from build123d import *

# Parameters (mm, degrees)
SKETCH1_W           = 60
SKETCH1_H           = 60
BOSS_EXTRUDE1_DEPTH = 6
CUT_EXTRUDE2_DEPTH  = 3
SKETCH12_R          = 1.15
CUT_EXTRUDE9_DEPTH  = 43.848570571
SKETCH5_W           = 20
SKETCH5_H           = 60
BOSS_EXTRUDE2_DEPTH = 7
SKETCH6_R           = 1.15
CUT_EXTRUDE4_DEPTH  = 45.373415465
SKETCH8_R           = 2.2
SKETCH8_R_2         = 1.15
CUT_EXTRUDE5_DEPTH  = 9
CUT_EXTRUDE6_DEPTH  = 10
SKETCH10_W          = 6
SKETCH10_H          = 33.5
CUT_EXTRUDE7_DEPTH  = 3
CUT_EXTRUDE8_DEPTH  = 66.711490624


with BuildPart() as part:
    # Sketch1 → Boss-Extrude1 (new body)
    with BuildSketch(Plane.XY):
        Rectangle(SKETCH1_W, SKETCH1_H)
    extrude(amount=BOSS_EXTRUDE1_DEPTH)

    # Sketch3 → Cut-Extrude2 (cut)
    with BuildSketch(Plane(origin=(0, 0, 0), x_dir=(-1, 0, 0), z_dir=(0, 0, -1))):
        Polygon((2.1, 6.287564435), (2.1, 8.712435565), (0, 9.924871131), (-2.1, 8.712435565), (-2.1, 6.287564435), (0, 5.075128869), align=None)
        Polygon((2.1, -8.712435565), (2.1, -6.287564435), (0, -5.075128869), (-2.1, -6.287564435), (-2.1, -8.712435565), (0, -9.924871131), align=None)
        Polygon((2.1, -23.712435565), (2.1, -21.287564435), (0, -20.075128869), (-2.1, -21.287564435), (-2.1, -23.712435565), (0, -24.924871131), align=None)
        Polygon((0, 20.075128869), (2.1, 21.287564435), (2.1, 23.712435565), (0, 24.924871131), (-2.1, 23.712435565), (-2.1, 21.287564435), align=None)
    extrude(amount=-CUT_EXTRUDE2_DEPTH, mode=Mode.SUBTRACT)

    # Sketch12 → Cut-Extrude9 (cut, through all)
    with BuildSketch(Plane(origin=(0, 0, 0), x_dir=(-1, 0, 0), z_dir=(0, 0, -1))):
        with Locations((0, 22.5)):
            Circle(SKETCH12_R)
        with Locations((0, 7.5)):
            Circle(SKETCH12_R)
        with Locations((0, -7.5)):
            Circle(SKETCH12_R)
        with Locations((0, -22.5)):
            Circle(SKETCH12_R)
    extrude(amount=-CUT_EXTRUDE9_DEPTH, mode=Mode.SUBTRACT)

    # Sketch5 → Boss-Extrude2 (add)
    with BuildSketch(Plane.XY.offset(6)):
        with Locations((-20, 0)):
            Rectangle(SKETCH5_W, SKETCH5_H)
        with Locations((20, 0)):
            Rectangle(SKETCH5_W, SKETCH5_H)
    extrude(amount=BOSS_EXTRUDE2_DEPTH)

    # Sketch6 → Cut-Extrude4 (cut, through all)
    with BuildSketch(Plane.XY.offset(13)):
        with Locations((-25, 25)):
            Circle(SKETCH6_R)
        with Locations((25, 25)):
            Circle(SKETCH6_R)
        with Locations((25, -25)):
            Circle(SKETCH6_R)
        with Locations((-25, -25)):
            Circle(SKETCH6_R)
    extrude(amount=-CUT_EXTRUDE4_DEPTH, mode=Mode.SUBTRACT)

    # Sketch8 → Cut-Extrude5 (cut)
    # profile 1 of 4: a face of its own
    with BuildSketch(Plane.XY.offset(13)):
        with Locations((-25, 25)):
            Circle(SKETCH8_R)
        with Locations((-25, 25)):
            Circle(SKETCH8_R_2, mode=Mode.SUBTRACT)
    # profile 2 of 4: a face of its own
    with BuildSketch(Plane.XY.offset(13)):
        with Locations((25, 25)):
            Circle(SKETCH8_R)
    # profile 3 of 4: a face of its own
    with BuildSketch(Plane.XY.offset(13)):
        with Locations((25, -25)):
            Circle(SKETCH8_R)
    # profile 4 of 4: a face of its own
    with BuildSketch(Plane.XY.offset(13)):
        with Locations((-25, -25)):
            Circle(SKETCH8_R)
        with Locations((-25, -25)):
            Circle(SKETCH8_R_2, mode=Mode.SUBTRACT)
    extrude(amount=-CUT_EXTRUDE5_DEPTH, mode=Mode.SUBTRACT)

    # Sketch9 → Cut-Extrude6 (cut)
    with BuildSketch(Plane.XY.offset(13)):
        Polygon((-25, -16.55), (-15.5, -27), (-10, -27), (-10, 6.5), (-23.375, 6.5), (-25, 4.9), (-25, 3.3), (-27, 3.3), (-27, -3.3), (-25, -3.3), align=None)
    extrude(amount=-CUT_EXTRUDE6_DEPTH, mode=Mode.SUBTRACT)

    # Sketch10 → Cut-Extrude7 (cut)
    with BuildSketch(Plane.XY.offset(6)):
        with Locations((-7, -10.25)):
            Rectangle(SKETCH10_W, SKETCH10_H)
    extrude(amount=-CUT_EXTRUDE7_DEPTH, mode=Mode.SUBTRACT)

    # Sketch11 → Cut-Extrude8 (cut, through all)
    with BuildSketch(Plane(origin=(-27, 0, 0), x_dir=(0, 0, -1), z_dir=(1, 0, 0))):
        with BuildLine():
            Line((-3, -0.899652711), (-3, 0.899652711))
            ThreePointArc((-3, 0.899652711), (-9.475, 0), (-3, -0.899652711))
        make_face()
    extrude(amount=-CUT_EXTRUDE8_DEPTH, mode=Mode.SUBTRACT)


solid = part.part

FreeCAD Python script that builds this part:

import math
import FreeCAD as App
import Part
import Sketcher
Q = App.Units.Quantity


def add_polygon(sketch, points):
    """Adds a closed chain of lines whose ends are joined by coincident constraints."""
    first, n = sketch.GeometryCount, len(points)
    for a, b in zip(points, points[1:] + points[:1]):
        sketch.addGeometry(Part.LineSegment(App.Vector(*a, 0), App.Vector(*b, 0)), False)
    for i in range(n):
        sketch.addConstraint(Sketcher.Constraint("Coincident", first + i, 2, first + (i + 1) % n, 1))

doc = App.newDocument("Part")
body = doc.addObject("PartDesign::Body", "Body")

sketch1 = body.newObject("Sketcher::SketchObject", "Sketch")
sketch1.AttachmentSupport = (doc.getObject("XY_Plane"), [""])
sketch1.MapMode = "FlatFace"
add_polygon(sketch1, [(-30, 30), (-30, -30), (30, -30), (30, 30)])
sketch1.addConstraint(Sketcher.Constraint("Vertical", 0))
sketch1.addConstraint(Sketcher.Constraint("Horizontal", 1))
sketch1.addConstraint(Sketcher.Constraint("Vertical", 2))
sketch1.addConstraint(Sketcher.Constraint("Horizontal", 3))
sketch1.addConstraint(Sketcher.Constraint("Symmetric", 0, 2, 2, 2, -1, 1))
sketch1.addConstraint(Sketcher.Constraint("Equal", 3, 0))
sketch1.addConstraint(Sketcher.Constraint("DistanceX", 1, 1, 1, 2, 60.0))
pad1 = body.newObject("PartDesign::Pad", "Pad")
pad1.Profile = sketch1
pad1.Length = 6

sketch2 = body.newObject("Sketcher::SketchObject", "Sketch001")
sketch2.AttachmentSupport = (doc.getObject("XY_Plane"), [""])
sketch2.MapMode = "FlatFace"
add_polygon(sketch2, [(-2.1, 6.3), (-2.1, 8.7), (0, 9.9), (2.1, 8.7), (2.1, 6.3), (0, 5.1)])
add_polygon(sketch2, [(-2.1, -8.7), (-2.1, -6.3), (0, -5.1), (2.1, -6.3), (2.1, -8.7), (0, -9.9)])
add_polygon(sketch2, [(-2.1, -23.7), (-2.1, -21.3), (0, -20.1), (2.1, -21.3), (2.1, -23.7), (0, -24.9)])
add_polygon(sketch2, [(0, 20.1), (-2.1, 21.3), (-2.1, 23.7), (0, 24.9), (2.1, 23.7), (2.1, 21.3)])
sketch2.addConstraint(Sketcher.Constraint("Vertical", 0))
sketch2.addConstraint(Sketcher.Constraint("Vertical", 3))
sketch2.addConstraint(Sketcher.Constraint("Vertical", 6))
sketch2.addConstraint(Sketcher.Constraint("Vertical", 9))
sketch2.addConstraint(Sketcher.Constraint("Vertical", 12))
sketch2.addConstraint(Sketcher.Constraint("Vertical", 15))
sketch2.addConstraint(Sketcher.Constraint("Vertical", 19))
sketch2.addConstraint(Sketcher.Constraint("Vertical", 22))
sketch2.addConstraint(Sketcher.Constraint("Symmetric", 3, 2, 6, 2, -1, 1))
sketch2.addConstraint(Sketcher.Constraint("Symmetric", 4, 2, 7, 2, -1, 1))
sketch2.addConstraint(Sketcher.Constraint("Symmetric", 5, 2, 8, 2, -1, 1))
sketch2.addConstraint(Sketcher.Constraint("Symmetric", 1, 2, 10, 2, -1, 1))
sketch2.addConstraint(Sketcher.Constraint("Symmetric", 14, 2, 18, 2, -1, 1))
sketch2.addConstraint(Sketcher.Constraint("Symmetric", 16, 2, 20, 2, -1, 1))
sketch2.addConstraint(Sketcher.Constraint("Symmetric", 17, 2, 21, 2, -1, 1))
sketch2.addConstraint(Sketcher.Constraint("Symmetric", 13, 2, 23, 2, -1, 1))
sketch2.addConstraint(Sketcher.Constraint("Symmetric", 0, 2, 2, 2, -2))
sketch2.addConstraint(Sketcher.Constraint("Symmetric", 12, 2, 14, 2, -2))
sketch2.addConstraint(Sketcher.Constraint("PointOnObject", 1, 2, -2))
sketch2.addConstraint(Sketcher.Constraint("PointOnObject", 4, 2, -2))
sketch2.addConstraint(Sketcher.Constraint("PointOnObject", 13, 2, -2))
sketch2.addConstraint(Sketcher.Constraint("PointOnObject", 16, 2, -2))
sketch2.addConstraint(Sketcher.Constraint("Parallel", 1, 4))
sketch2.addConstraint(Sketcher.Constraint("Parallel", 2, 5))
sketch2.addConstraint(Sketcher.Constraint("Parallel", 7, 10))
sketch2.addConstraint(Sketcher.Constraint("Parallel", 8, 11))
sketch2.addConstraint(Sketcher.Constraint("Parallel", 10, 13))
sketch2.addConstraint(Sketcher.Constraint("Parallel", 13, 16))
sketch2.addConstraint(Sketcher.Constraint("Parallel", 14, 17))
sketch2.addConstraint(Sketcher.Constraint("Parallel", 16, 20))
sketch2.addConstraint(Sketcher.Constraint("Parallel", 20, 23))
sketch2.addConstraint(Sketcher.Constraint("Vertical", 11, 2, 12, 2))
sketch2.addConstraint(Sketcher.Constraint("Equal", 9, 12))
sketch2.addConstraint(Sketcher.Constraint("Angle", 1, Q("30 deg")))
sketch2.addConstraint(Sketcher.Constraint("DistanceY", 6, 2, 0, 2, 15.0))
sketch2.addConstraint(Sketcher.Constraint("DistanceY", 12, 2, 6, 2, 15.0))
sketch2.addConstraint(Sketcher.Constraint("DistanceX", 0, 2, -1, 1, 2.1))
sketch2.addConstraint(Sketcher.Constraint("DistanceY", 0, 1, 0, 2, 2.424871))
pocket1 = body.newObject("PartDesign::Pocket", "Pocket")
pocket1.Profile = sketch2
pocket1.Length = 3
pocket1.Reversed = True

sketch3 = body.newObject("Sketcher::SketchObject", "Sketch002")
sketch3.AttachmentSupport = (doc.getObject("XY_Plane"), [""])
sketch3.MapMode = "FlatFace"
sketch3.addGeometry(Part.Circle(App.Vector(0, 22.5, 0), App.Vector(0, 0, 1), 1.1), False)
sketch3.addGeometry(Part.Circle(App.Vector(0, 7.5, 0), App.Vector(0, 0, 1), 1.1), False)
sketch3.addGeometry(Part.Circle(App.Vector(0, -7.5, 0), App.Vector(0, 0, 1), 1.1), False)
sketch3.addGeometry(Part.Circle(App.Vector(0, -22.5, 0), App.Vector(0, 0, 1), 1.1), False)
sketch3.addConstraint(Sketcher.Constraint("Equal", 0, 1))
sketch3.addConstraint(Sketcher.Constraint("Equal", 1, 2))
sketch3.addConstraint(Sketcher.Constraint("Equal", 2, 3))
sketch3.addConstraint(Sketcher.Constraint("Symmetric", 1, 3, 2, 3, -1, 1))
sketch3.addConstraint(Sketcher.Constraint("Symmetric", 0, 3, 3, 3, -1, 1))
sketch3.addConstraint(Sketcher.Constraint("PointOnObject", 0, 3, -2))
sketch3.addConstraint(Sketcher.Constraint("PointOnObject", 1, 3, -2))
sketch3.addConstraint(Sketcher.Constraint("Diameter", 0, 2.3))
sketch3.addConstraint(Sketcher.Constraint("DistanceY", 1, 3, 0, 3, 15.0))
sketch3.addConstraint(Sketcher.Constraint("DistanceY", 2, 3, 1, 3, 15.0))
pocket2 = body.newObject("PartDesign::Pocket", "Pocket001")
pocket2.Profile = sketch3
pocket2.Type = "ThroughAll"
pocket2.Reversed = True

sketch4 = body.newObject("Sketcher::SketchObject", "Sketch003")
sketch4.AttachmentSupport = (doc.getObject("XY_Plane"), [""])
sketch4.MapMode = "FlatFace"
sketch4.AttachmentOffset = App.Placement(App.Vector(0, 0, 6), App.Rotation())
add_polygon(sketch4, [(-30, 30), (-30, -30), (-10, -30), (-10, 30)])
add_polygon(sketch4, [(10, 30), (10, -30), (30, -30), (30, 30)])
sketch4.addConstraint(Sketcher.Constraint("Vertical", 0))
sketch4.addConstraint(Sketcher.Constraint("Horizontal", 1))
sketch4.addConstraint(Sketcher.Constraint("Vertical", 2))
sketch4.addConstraint(Sketcher.Constraint("Horizontal", 3))
sketch4.addConstraint(Sketcher.Constraint("Vertical", 4))
sketch4.addConstraint(Sketcher.Constraint("Horizontal", 5))
sketch4.addConstraint(Sketcher.Constraint("Vertical", 6))
sketch4.addConstraint(Sketcher.Constraint("Horizontal", 7))
sketch4.addConstraint(Sketcher.Constraint("Symmetric", 2, 2, 4, 2, -1, 1))
sketch4.addConstraint(Sketcher.Constraint("Symmetric", 0, 2, 6, 2, -1, 1))
sketch4.addConstraint(Sketcher.Constraint("Horizontal", 1, 2, 4, 2))
sketch4.addConstraint(Sketcher.Constraint("DistanceX", 1, 1, 1, 2, 20.0))
sketch4.addConstraint(Sketcher.Constraint("DistanceY", 0, 2, 0, 1, 60.0))
sketch4.addConstraint(Sketcher.Constraint("DistanceX", 0, 2, -1, 1, 30.0))
pad2 = body.newObject("PartDesign::Pad", "Pad001")
pad2.Profile = sketch4
pad2.Length = 7

sketch5 = body.newObject("Sketcher::SketchObject", "Sketch004")
sketch5.AttachmentSupport = (doc.getObject("XY_Plane"), [""])
sketch5.MapMode = "FlatFace"
sketch5.AttachmentOffset = App.Placement(App.Vector(0, 0, 13), App.Rotation())
sketch5.addGeometry(Part.Circle(App.Vector(-25, 25, 0), App.Vector(0, 0, 1), 1.1), False)
sketch5.addGeometry(Part.Circle(App.Vector(25, 25, 0), App.Vector(0, 0, 1), 1.1), False)
sketch5.addGeometry(Part.Circle(App.Vector(25, -25, 0), App.Vector(0, 0, 1), 1.1), False)
sketch5.addGeometry(Part.Circle(App.Vector(-25, -25, 0), App.Vector(0, 0, 1), 1.1), False)
sketch5.addConstraint(Sketcher.Constraint("Equal", 0, 1))
sketch5.addConstraint(Sketcher.Constraint("Equal", 1, 2))
sketch5.addConstraint(Sketcher.Constraint("Equal", 2, 3))
sketch5.addConstraint(Sketcher.Constraint("Symmetric", 0, 3, 2, 3, -1, 1))
sketch5.addConstraint(Sketcher.Constraint("Symmetric", 1, 3, 3, 3, -1, 1))
sketch5.addConstraint(Sketcher.Constraint("Symmetric", 0, 3, 1, 3, -2))
sketch5.addConstraint(Sketcher.Constraint("Diameter", 0, 2.3))
sketch5.addConstraint(Sketcher.Constraint("DistanceX", 0, 3, -1, 1, 25.0))
sketch5.addConstraint(Sketcher.Constraint("DistanceY", -1, 1, 0, 3, 25.0))
pocket3 = body.newObject("PartDesign::Pocket", "Pocket002")
pocket3.Profile = sketch5
pocket3.Type = "ThroughAll"

sketch6 = body.newObject("Sketcher::SketchObject", "Sketch005")
sketch6.AttachmentSupport = (doc.getObject("XY_Plane"), [""])
sketch6.MapMode = "FlatFace"
sketch6.AttachmentOffset = App.Placement(App.Vector(0, 0, 13), App.Rotation())
sketch6.addGeometry(Part.Circle(App.Vector(-25, 25, 0), App.Vector(0, 0, 1), 2.2), False)
sketch6.addGeometry(Part.Circle(App.Vector(-25, 25, 0), App.Vector(0, 0, 1), 1.1), False)
sketch6.addGeometry(Part.Circle(App.Vector(25, 25, 0), App.Vector(0, 0, 1), 2.2), False)
sketch6.addGeometry(Part.Circle(App.Vector(25, -25, 0), App.Vector(0, 0, 1), 2.2), False)
sketch6.addGeometry(Part.Circle(App.Vector(-25, -25, 0), App.Vector(0, 0, 1), 2.2), False)
sketch6.addGeometry(Part.Circle(App.Vector(-25, -25, 0), App.Vector(0, 0, 1), 1.1), False)
sketch6.addConstraint(Sketcher.Constraint("Coincident", 1, 3, 0, 3))
sketch6.addConstraint(Sketcher.Constraint("Coincident", 5, 3, 4, 3))
sketch6.addConstraint(Sketcher.Constraint("Equal", 0, 2))
sketch6.addConstraint(Sketcher.Constraint("Equal", 2, 3))
sketch6.addConstraint(Sketcher.Constraint("Equal", 3, 4))
sketch6.addConstraint(Sketcher.Constraint("Equal", 1, 5))
sketch6.addConstraint(Sketcher.Constraint("Symmetric", 0, 3, 3, 3, -1, 1))
sketch6.addConstraint(Sketcher.Constraint("Symmetric", 2, 3, 4, 3, -1, 1))
sketch6.addConstraint(Sketcher.Constraint("Symmetric", 0, 3, 2, 3, -2))
sketch6.addConstraint(Sketcher.Constraint("Diameter", 0, 4.4))
sketch6.addConstraint(Sketcher.Constraint("Diameter", 1, 2.3))
sketch6.addConstraint(Sketcher.Constraint("DistanceX", 0, 3, -1, 1, 25.0))
sketch6.addConstraint(Sketcher.Constraint("DistanceY", -1, 1, 0, 3, 25.0))
pocket4 = body.newObject("PartDesign::Pocket", "Pocket003")
pocket4.Profile = sketch6
pocket4.Length = 9

sketch7 = body.newObject("Sketcher::SketchObject", "Sketch006")
sketch7.AttachmentSupport = (doc.getObject("XY_Plane"), [""])
sketch7.MapMode = "FlatFace"
sketch7.AttachmentOffset = App.Placement(App.Vector(0, 0, 13), App.Rotation())
add_polygon(sketch7, [(-25, -16.6), (-15.5, -27), (-10, -27), (-10, 6.5), (-23.4, 6.5), (-25, 4.9), (-25, 3.3), (-27, 3.3), (-27, -3.3), (-25, -3.3)])
sketch7.addConstraint(Sketcher.Constraint("Horizontal", 1))
sketch7.addConstraint(Sketcher.Constraint("Vertical", 2))
sketch7.addConstraint(Sketcher.Constraint("Horizontal", 3))
sketch7.addConstraint(Sketcher.Constraint("Vertical", 5))
sketch7.addConstraint(Sketcher.Constraint("Horizontal", 6))
sketch7.addConstraint(Sketcher.Constraint("Vertical", 7))
sketch7.addConstraint(Sketcher.Constraint("Horizontal", 8))
sketch7.addConstraint(Sketcher.Constraint("Vertical", 9))
sketch7.addConstraint(Sketcher.Constraint("Symmetric", 5, 2, 8, 2, -1))
sketch7.addConstraint(Sketcher.Constraint("DistanceX", 6, 2, 6, 1, 2.0))
sketch7.addConstraint(Sketcher.Constraint("DistanceX", 1, 1, 1, 2, 5.5))
sketch7.addConstraint(Sketcher.Constraint("DistanceY", 2, 1, 2, 2, 33.5))
sketch7.addConstraint(Sketcher.Constraint("DistanceY", 5, 2, 5, 1, 1.6))
sketch7.addConstraint(Sketcher.Constraint("DistanceY", 7, 2, 7, 1, 6.6))
sketch7.addConstraint(Sketcher.Constraint("DistanceY", 0, 2, -1, 1, 27.0))
sketch7.addConstraint(Sketcher.Constraint("DistanceX", 1, 2, -1, 1, 10.0))
sketch7.addConstraint(Sketcher.Constraint("DistanceX", 4, 2, -1, 1, 25.0))
sketch7.addConstraint(Sketcher.Constraint("DistanceY", 9, 2, 9, 1, 13.25))
sketch7.addConstraint(Sketcher.Constraint("DistanceX", 3, 2, 3, 1, 13.375))
pocket5 = body.newObject("PartDesign::Pocket", "Pocket004")
pocket5.Profile = sketch7
pocket5.Length = 10

sketch8 = body.newObject("Sketcher::SketchObject", "Sketch007")
sketch8.AttachmentSupport = (doc.getObject("XY_Plane"), [""])
sketch8.MapMode = "FlatFace"
sketch8.AttachmentOffset = App.Placement(App.Vector(0, 0, 6), App.Rotation())
add_polygon(sketch8, [(-10, 6), (-10, -27), (-4, -27), (-4, 6)])
sketch8.addConstraint(Sketcher.Constraint("Vertical", 0))
sketch8.addConstraint(Sketcher.Constraint("Horizontal", 1))
sketch8.addConstraint(Sketcher.Constraint("Vertical", 2))
sketch8.addConstraint(Sketcher.Constraint("Horizontal", 3))
sketch8.addConstraint(Sketcher.Constraint("DistanceX", 1, 1, 1, 2, 6.0))
sketch8.addConstraint(Sketcher.Constraint("DistanceY", 0, 2, 0, 1, 33.5))
sketch8.addConstraint(Sketcher.Constraint("DistanceX", 0, 2, -1, 1, 10.0))
sketch8.addConstraint(Sketcher.Constraint("DistanceY", 0, 2, -1, 1, 27.0))
pocket6 = body.newObject("PartDesign::Pocket", "Pocket005")
pocket6.Profile = sketch8
pocket6.Length = 3

sketch9 = body.newObject("Sketcher::SketchObject", "Sketch008")
sketch9.AttachmentSupport = (doc.getObject("YZ_Plane"), [""])
sketch9.MapMode = "FlatFace"
sketch9.AttachmentOffset = App.Placement(App.Vector(0, 0, -27), App.Rotation())
sketch9.addGeometry(Part.LineSegment(App.Vector(-0.9, 3, 0), App.Vector(0.9, 3, 0)), False)
sketch9.addGeometry(Part.ArcOfCircle(Part.Circle(App.Vector(0, 6.2, 0), App.Vector(0, 0, 1), 3.3), math.radians(-74), math.radians(254)), False)
sketch9.addConstraint(Sketcher.Constraint("Coincident", 0, 1, 1, 2))
sketch9.addConstraint(Sketcher.Constraint("Coincident", 1, 1, 0, 2))
sketch9.addConstraint(Sketcher.Constraint("Horizontal", 0))
sketch9.addConstraint(Sketcher.Constraint("PointOnObject", 1, 3, -2))
sketch9.addConstraint(Sketcher.Constraint("Radius", 1, 3.3))
sketch9.addConstraint(Sketcher.Constraint("DistanceY", -1, 1, 0, 1, 3.0))
sketch9.addConstraint(Sketcher.Constraint("DistanceY", -1, 1, 1, 3, 6.175))
pocket7 = body.newObject("PartDesign::Pocket", "Pocket006")
pocket7.Profile = sketch9
pocket7.Type = "ThroughAll"

doc.recompute()
